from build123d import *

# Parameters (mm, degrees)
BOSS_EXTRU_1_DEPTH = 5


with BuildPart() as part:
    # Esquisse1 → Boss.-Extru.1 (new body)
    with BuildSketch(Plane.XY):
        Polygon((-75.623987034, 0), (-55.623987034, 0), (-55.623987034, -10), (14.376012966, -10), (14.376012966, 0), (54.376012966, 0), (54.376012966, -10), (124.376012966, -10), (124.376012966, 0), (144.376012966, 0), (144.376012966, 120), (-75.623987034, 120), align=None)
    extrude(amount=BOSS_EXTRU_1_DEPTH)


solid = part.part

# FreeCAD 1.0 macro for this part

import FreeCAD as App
import Part
import Sketcher
from FreeCAD import Vector


def add_polygon(sketch, points):
    """Adds a closed chain of lines whose ends are joined by coincident constraints."""
    first, n = sketch.GeometryCount, len(points)
    for a, b in zip(points, points[1:] + points[:1]):
        sketch.addGeometry(Part.LineSegment(App.Vector(*a, 0), App.Vector(*b, 0)), False)
    for i in range(n):
        sketch.addConstraint(Sketcher.Constraint("Coincident", first + i, 2, first + (i + 1) % n, 1))

doc = App.newDocument("Part")
body = doc.addObject("PartDesign::Body", "Body")

# Sketch on XY plane
sketch1 = body.newObject("Sketcher::SketchObject", "Sketch")
sketch1.AttachmentSupport = (doc.getObject("XY_Plane"), [""])
sketch1.MapMode = "FlatFace"
add_polygon(sketch1, [(-75.623987, 0), (-55.623987, 0), (-55.623987, -10), (14.376013, -10), (14.376013, 0), (54.376013, 0), (54.376013, -10), (124.376013, -10), (124.376013, 0), (144.376013, 0), (144.376013, 120), (-75.623987, 120)])  # lines 0-11
sketch1.addConstraint([
    Sketcher.Constraint("Horizontal", 0),
    Sketcher.Constraint("Vertical", 1),
    Sketcher.Constraint("Horizontal", 2),
    Sketcher.Constraint("Vertical", 3),
    Sketcher.Constraint("Horizontal", 4),
    Sketcher.Constraint("Vertical", 5),
    Sketcher.Constraint("Horizontal", 6),
    Sketcher.Constraint("Vertical", 7),
    Sketcher.Constraint("Horizontal", 8),
    Sketcher.Constraint("Vertical", 9),
    Sketcher.Constraint("Horizontal", 10),
    Sketcher.Constraint("Vertical", 11),
    Sketcher.Constraint("PointOnObject", 0, 2, -1),
    Sketcher.Constraint("PointOnObject", 3, 2, -1),
    Sketcher.Constraint("PointOnObject", 7, 2, -1),
    Sketcher.Constraint("Horizontal", 2, 2, 5, 2),
    Sketcher.Constraint("Equal", 2, 6),
    Sketcher.Constraint("Equal", 0, 8),
    Sketcher.Constraint("DistanceX", 0, 1, 0, 2, 20.0),
    Sketcher.Constraint("DistanceX", 2, 1, 2, 2, 70.0),
    Sketcher.Constraint("DistanceX", 4, 1, 4, 2, 40.0),
    Sketcher.Constraint("DistanceY", 1, 2, 1, 1, 10.0),
    Sketcher.Constraint("DistanceY", 9, 1, 9, 2, 120.0),
    Sketcher.Constraint("DistanceX", 0, 2, -1, 1, 55.623987),
])
pad1 = body.newObject("PartDesign::Pad", "Pad")
pad1.Profile = sketch1
pad1.Length = 5

doc.recompute()
